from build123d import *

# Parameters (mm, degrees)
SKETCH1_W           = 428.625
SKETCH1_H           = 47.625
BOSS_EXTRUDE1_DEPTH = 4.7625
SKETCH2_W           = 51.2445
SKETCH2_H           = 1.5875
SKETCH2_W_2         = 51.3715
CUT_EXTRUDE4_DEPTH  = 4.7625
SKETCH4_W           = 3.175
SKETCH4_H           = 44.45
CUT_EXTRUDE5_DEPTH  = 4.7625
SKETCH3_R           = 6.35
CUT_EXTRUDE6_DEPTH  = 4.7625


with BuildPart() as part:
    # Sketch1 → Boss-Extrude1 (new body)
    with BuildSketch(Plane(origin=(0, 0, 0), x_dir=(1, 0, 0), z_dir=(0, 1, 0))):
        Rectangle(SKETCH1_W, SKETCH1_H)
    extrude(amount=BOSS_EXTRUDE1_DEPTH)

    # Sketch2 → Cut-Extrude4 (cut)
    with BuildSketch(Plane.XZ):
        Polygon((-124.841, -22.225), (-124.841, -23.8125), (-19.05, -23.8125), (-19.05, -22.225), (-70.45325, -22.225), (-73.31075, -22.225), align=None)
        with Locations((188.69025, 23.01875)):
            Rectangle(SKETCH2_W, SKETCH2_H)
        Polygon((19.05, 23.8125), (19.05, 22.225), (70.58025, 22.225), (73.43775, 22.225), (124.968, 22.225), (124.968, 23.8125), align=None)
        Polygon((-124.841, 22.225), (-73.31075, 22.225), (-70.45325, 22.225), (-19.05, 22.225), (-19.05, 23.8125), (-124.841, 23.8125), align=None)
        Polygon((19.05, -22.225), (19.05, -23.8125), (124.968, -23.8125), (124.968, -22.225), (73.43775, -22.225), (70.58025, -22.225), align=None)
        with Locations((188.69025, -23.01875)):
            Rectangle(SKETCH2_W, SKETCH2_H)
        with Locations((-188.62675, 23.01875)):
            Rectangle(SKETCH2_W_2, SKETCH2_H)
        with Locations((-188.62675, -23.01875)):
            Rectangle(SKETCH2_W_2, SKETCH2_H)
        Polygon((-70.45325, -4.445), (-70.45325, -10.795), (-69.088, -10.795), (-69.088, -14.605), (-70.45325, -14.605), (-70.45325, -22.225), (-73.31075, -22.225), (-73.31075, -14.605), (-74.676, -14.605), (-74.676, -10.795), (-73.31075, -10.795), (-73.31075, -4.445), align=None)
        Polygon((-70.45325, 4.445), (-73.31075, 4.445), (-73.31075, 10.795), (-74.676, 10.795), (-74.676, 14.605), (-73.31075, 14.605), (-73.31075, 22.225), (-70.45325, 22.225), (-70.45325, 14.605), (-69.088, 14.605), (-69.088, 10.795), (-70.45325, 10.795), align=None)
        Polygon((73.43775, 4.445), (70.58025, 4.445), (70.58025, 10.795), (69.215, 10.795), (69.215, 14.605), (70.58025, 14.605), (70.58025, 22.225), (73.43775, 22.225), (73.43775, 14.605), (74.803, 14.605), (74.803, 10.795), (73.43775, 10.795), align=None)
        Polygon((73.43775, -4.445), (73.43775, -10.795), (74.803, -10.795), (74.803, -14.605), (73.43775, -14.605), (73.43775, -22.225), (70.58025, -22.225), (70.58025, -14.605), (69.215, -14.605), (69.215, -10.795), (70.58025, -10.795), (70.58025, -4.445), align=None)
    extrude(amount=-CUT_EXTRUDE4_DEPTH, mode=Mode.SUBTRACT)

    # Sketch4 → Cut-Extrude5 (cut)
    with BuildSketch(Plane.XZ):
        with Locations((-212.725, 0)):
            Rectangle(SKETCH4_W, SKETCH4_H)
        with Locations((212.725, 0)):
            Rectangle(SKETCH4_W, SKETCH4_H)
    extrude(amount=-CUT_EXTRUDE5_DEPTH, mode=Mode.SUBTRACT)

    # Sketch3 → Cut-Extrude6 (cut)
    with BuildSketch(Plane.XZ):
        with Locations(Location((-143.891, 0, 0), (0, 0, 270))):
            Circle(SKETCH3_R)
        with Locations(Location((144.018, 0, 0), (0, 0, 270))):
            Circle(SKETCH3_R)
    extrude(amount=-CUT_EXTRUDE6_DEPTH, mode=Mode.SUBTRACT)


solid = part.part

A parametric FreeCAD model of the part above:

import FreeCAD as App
import Part
import Sketcher
Q = App.Units.Quantity

doc = App.newDocument("Part")
body = doc.addObject("PartDesign::Body", "Body")

sketch1 = body.newObject("Sketcher::SketchObject", "Sketch")
sketch1.AttachmentSupport = (doc.getObject("XZ_Plane"), [""])
sketch1.MapMode = "FlatFace"
sketch1.addGeometry([
    Part.LineSegment(App.Vector(-214, -24, 0), App.Vector(-214, 24, 0)),
    Part.LineSegment(App.Vector(-214, 24, 0), App.Vector(214, 24, 0)),
    Part.LineSegment(App.Vector(214, 24, 0), App.Vector(214, -24, 0)),
    Part.LineSegment(App.Vector(214, -24, 0), App.Vector(-214, -24, 0)),
], False)
sketch1.addConstraint([
    Sketcher.Constraint("Coincident", 0, 2, 1, 1),
    Sketcher.Constraint("Coincident", 1, 2, 2, 1),
    Sketcher.Constraint("Coincident", 2, 2, 3, 1),
    Sketcher.Constraint("Coincident", 3, 2, 0, 1),
    Sketcher.Constraint("Vertical", 0),
    Sketcher.Constraint("Horizontal", 1),
    Sketcher.Constraint("Vertical", 2),
    Sketcher.Constraint("Horizontal", 3),
    Sketcher.Constraint("Symmetric", 0, 2, 2, 2, -1, 1),
    Sketcher.Constraint("DistanceX", 1, 1, 1, 2, Q("16.875 in")),
    Sketcher.Constraint("DistanceY", 0, 1, 0, 2, Q("1.875 in")),
])
pad1 = body.newObject("PartDesign::Pad", "Pad")
pad1.Profile = sketch1
pad1.Length = Q("0.1875 in")
pad1.Reversed = True

sketch2 = body.newObject("Sketcher::SketchObject", "Sketch001")
sketch2.AttachmentSupport = (doc.getObject("XZ_Plane"), [""])
sketch2.MapMode = "FlatFace"
sketch2.addGeometry([
    Part.LineSegment(App.Vector(-124.8, -22.2, 0), App.Vector(-124.8, -23.8, 0)),
    Part.LineSegment(App.Vector(-124.8, -23.8, 0), App.Vector(-19.1, -23.8, 0)),
    Part.LineSegment(App.Vector(-19.1, -23.8, 0), App.Vector(-19.1, -22.2, 0)),
    Part.LineSegment(App.Vector(-19.1, -22.2, 0), App.Vector(-70.5, -22.2, 0)),
    Part.LineSegment(App.Vector(-70.5, -22.2, 0), App.Vector(-70.5, -14.6, 0)),
    Part.LineSegment(App.Vector(-70.5, -14.6, 0), App.Vector(-69.1, -14.6, 0)),
    Part.LineSegment(App.Vector(-69.1, -14.6, 0), App.Vector(-69.1, -10.8, 0)),
    Part.LineSegment(App.Vector(-69.1, -10.8, 0), App.Vector(-70.5, -10.8, 0)),
    Part.LineSegment(App.Vector(-70.5, -10.8, 0), App.Vector(-70.5, -4.4, 0)),
    Part.LineSegment(App.Vector(-70.5, -4.4, 0), App.Vector(-73.3, -4.4, 0)),
    Part.LineSegment(App.Vector(-73.3, -4.4, 0), App.Vector(-73.3, -10.8, 0)),
    Part.LineSegment(App.Vector(-73.3, -10.8, 0), App.Vector(-74.7, -10.8, 0)),
    Part.LineSegment(App.Vector(-74.7, -10.8, 0), App.Vector(-74.7, -14.6, 0)),
    Part.LineSegment(App.Vector(-74.7, -14.6, 0), App.Vector(-73.3, -14.6, 0)),
    Part.LineSegment(App.Vector(-73.3, -14.6, 0), App.Vector(-73.3, -22.2, 0)),
    Part.LineSegment(App.Vector(-73.3, -22.2, 0), App.Vector(-124.8, -22.2, 0)),
    Part.LineSegment(App.Vector(163.1, 23.8, 0), App.Vector(163.1, 22.2, 0)),
    Part.LineSegment(App.Vector(163.1, 22.2, 0), App.Vector(214.3, 22.2, 0)),
    Part.LineSegment(App.Vector(214.3, 22.2, 0), App.Vector(214.3, 23.8, 0)),
    Part.LineSegment(App.Vector(214.3, 23.8, 0), App.Vector(163.1, 23.8, 0)),
    Part.LineSegment(App.Vector(19.1, 23.8, 0), App.Vector(19.1, 22.2, 0)),
    Part.LineSegment(App.Vector(19.1, 22.2, 0), App.Vector(70.6, 22.2, 0)),
    Part.LineSegment(App.Vector(70.6, 22.2, 0), App.Vector(70.6, 14.6, 0)),
    Part.LineSegment(App.Vector(70.6, 14.6, 0), App.Vector(69.2, 14.6, 0)),
    Part.LineSegment(App.Vector(69.2, 14.6, 0), App.Vector(69.2, 10.8, 0)),
    Part.LineSegment(App.Vector(69.2, 10.8, 0), App.Vector(70.6, 10.8, 0)),
    Part.LineSegment(App.Vector(70.6, 10.8, 0), App.Vector(70.6, 4.4, 0)),
    Part.LineSegment(App.Vector(70.6, 4.4, 0), App.Vector(73.4, 4.4, 0)),
    Part.LineSegment(App.Vector(73.4, 4.4, 0), App.Vector(73.4, 10.8, 0)),
    Part.LineSegment(App.Vector(73.4, 10.8, 0), App.Vector(74.8, 10.8, 0)),
    Part.LineSegment(App.Vector(74.8, 10.8, 0), App.Vector(74.8, 14.6, 0)),
    Part.LineSegment(App.Vector(74.8, 14.6, 0), App.Vector(73.4, 14.6, 0)),
    Part.LineSegment(App.Vector(73.4, 14.6, 0), App.Vector(73.4, 22.2, 0)),
    Part.LineSegment(App.Vector(73.4, 22.2, 0), App.Vector(125, 22.2, 0)),
    Part.LineSegment(App.Vector(125, 22.2, 0), App.Vector(125, 23.8, 0)),
    Part.LineSegment(App.Vector(125, 23.8, 0), App.Vector(19.1, 23.8, 0)),
    Part.LineSegment(App.Vector(-124.8, 22.2, 0), App.Vector(-73.3, 22.2, 0)),
    Part.LineSegment(App.Vector(-73.3, 22.2, 0), App.Vector(-73.3, 14.6, 0)),
    Part.LineSegment(App.Vector(-73.3, 14.6, 0), App.Vector(-74.7, 14.6, 0)),
    Part.LineSegment(App.Vector(-74.7, 14.6, 0), App.Vector(-74.7, 10.8, 0)),
    Part.LineSegment(App.Vector(-74.7, 10.8, 0), App.Vector(-73.3, 10.8, 0)),
    Part.LineSegment(App.Vector(-73.3, 10.8, 0), App.Vector(-73.3, 4.4, 0)),
    Part.LineSegment(App.Vector(-73.3, 4.4, 0), App.Vector(-70.5, 4.4, 0)),
    Part.LineSegment(App.Vector(-70.5, 4.4, 0), App.Vector(-70.5, 10.8, 0)),
    Part.LineSegment(App.Vector(-70.5, 10.8, 0), App.Vector(-69.1, 10.8, 0)),
    Part.LineSegment(App.Vector(-69.1, 10.8, 0), App.Vector(-69.1, 14.6, 0)),
    Part.LineSegment(App.Vector(-69.1, 14.6, 0), App.Vector(-70.5, 14.6, 0)),
    Part.LineSegment(App.Vector(-70.5, 14.6, 0), App.Vector(-70.5, 22.2, 0)),
    Part.LineSegment(App.Vector(-70.5, 22.2, 0), App.Vector(-19.1, 22.2, 0)),
    Part.LineSegment(App.Vector(-19.1, 22.2, 0), App.Vector(-19.1, 23.8, 0)),
    Part.LineSegment(App.Vector(-19.1, 23.8, 0), App.Vector(-124.8, 23.8, 0)),
    Part.LineSegment(App.Vector(-124.8, 23.8, 0), App.Vector(-124.8, 22.2, 0)),
    Part.LineSegment(App.Vector(19.1, -22.2, 0), App.Vector(19.1, -23.8, 0)),
    Part.LineSegment(App.Vector(19.1, -23.8, 0), App.Vector(125, -23.8, 0)),
    Part.LineSegment(App.Vector(125, -23.8, 0), App.Vector(125, -22.2, 0)),
    Part.LineSegment(App.Vector(125, -22.2, 0), App.Vector(73.4, -22.2, 0)),
    Part.LineSegment(App.Vector(73.4, -22.2, 0), App.Vector(73.4, -14.6, 0)),
    Part.LineSegment(App.Vector(73.4, -14.6, 0), App.Vector(74.8, -14.6, 0)),
    Part.LineSegment(App.Vector(74.8, -14.6, 0), App.Vector(74.8, -10.8, 0)),
    Part.LineSegment(App.Vector(74.8, -10.8, 0), App.Vector(73.4, -10.8, 0)),
    Part.LineSegment(App.Vector(73.4, -10.8, 0), App.Vector(73.4, -4.4, 0)),
    Part.LineSegment(App.Vector(73.4, -4.4, 0), App.Vector(70.6, -4.4, 0)),
    Part.LineSegment(App.Vector(70.6, -4.4, 0), App.Vector(70.6, -10.8, 0)),
    Part.LineSegment(App.Vector(70.6, -10.8, 0), App.Vector(69.2, -10.8, 0)),
    Part.LineSegment(App.Vector(69.2, -10.8, 0), App.Vector(69.2, -14.6, 0)),
    Part.LineSegment(App.Vector(69.2, -14.6, 0), App.Vector(70.6, -14.6, 0)),
    Part.LineSegment(App.Vector(70.6, -14.6, 0), App.Vector(70.6, -22.2, 0)),
    Part.LineSegment(App.Vector(70.6, -22.2, 0), App.Vector(19.1, -22.2, 0)),
    Part.LineSegment(App.Vector(163.1, -22.2, 0), App.Vector(163.1, -23.8, 0)),
    Part.LineSegment(App.Vector(163.1, -23.8, 0), App.Vector(214.3, -23.8, 0)),
    Part.LineSegment(App.Vector(214.3, -23.8, 0), App.Vector(214.3, -22.2, 0)),
    Part.LineSegment(App.Vector(214.3, -22.2, 0), App.Vector(163.1, -22.2, 0)),
    Part.LineSegment(App.Vector(-214.3, 23.8, 0), App.Vector(-214.3, 22.2, 0)),
    Part.LineSegment(App.Vector(-214.3, 22.2, 0), App.Vector(-162.9, 22.2, 0)),
    Part.LineSegment(App.Vector(-162.9, 22.2, 0), App.Vector(-162.9, 23.8, 0)),
    Part.LineSegment(App.Vector(-162.9, 23.8, 0), App.Vector(-214.3, 23.8, 0)),
    Part.LineSegment(App.Vector(-214.3, -22.2, 0), App.Vector(-214.3, -23.8, 0)),
    Part.LineSegment(App.Vector(-214.3, -23.8, 0), App.Vector(-162.9, -23.8, 0)),
    Part.LineSegment(App.Vector(-162.9, -23.8, 0), App.Vector(-162.9, -22.2, 0)),
    Part.LineSegment(App.Vector(-162.9, -22.2, 0), App.Vector(-214.3, -22.2, 0)),
], False)
sketch2.addConstraint([
    Sketcher.Constraint("Coincident", 0, 2, 1, 1),
    Sketcher.Constraint("Coincident", 1, 2, 2, 1),
    Sketcher.Constraint("Coincident", 2, 2, 3, 1),
    Sketcher.Constraint("Coincident", 3, 2, 4, 1),
    Sketcher.Constraint("Coincident", 4, 2, 5, 1),
    Sketcher.Constraint("Coincident", 5, 2, 6, 1),
    Sketcher.Constraint("Coincident", 6, 2, 7, 1),
    Sketcher.Constraint("Coincident", 7, 2, 8, 1),
    Sketcher.Constraint("Coincident", 8, 2, 9, 1),
    Sketcher.Constraint("Coincident", 9, 2, 10, 1),
    Sketcher.Constraint("Coincident", 10, 2, 11, 1),
    Sketcher.Constraint("Coincident", 11, 2, 12, 1),
    Sketcher.Constraint("Coincident", 12, 2, 13, 1),
    Sketcher.Constraint("Coincident", 13, 2, 14, 1),
    Sketcher.Constraint("Coincident", 14, 2, 15, 1),
    Sketcher.Constraint("Coincident", 15, 2, 0, 1),
    Sketcher.Constraint("Coincident", 16, 2, 17, 1),
    Sketcher.Constraint("Coincident", 17, 2, 18, 1),
    Sketcher.Constraint("Coincident", 18, 2, 19, 1),
    Sketcher.Constraint("Coincident", 19, 2, 16, 1),
    Sketcher.Constraint("Coincident", 20, 2, 21, 1),
    Sketcher.Constraint("Coincident", 21, 2, 22, 1),
    Sketcher.Constraint("Coincident", 22, 2, 23, 1),
    Sketcher.Constraint("Coincident", 23, 2, 24, 1),
    Sketcher.Constraint("Coincident", 24, 2, 25, 1),
    Sketcher.Constraint("Coincident", 25, 2, 26, 1),
    Sketcher.Constraint("Coincident", 26, 2, 27, 1),
    Sketcher.Constraint("Coincident", 27, 2, 28, 1),
    Sketcher.Constraint("Coincident", 28, 2, 29, 1),
    Sketcher.Constraint("Coincident", 29, 2, 30, 1),
    Sketcher.Constraint("Coincident", 30, 2, 31, 1),
    Sketcher.Constraint("Coincident", 31, 2, 32, 1),
    Sketcher.Constraint("Coincident", 32, 2, 33, 1),
    Sketcher.Constraint("Coincident", 33, 2, 34, 1),
    Sketcher.Constraint("Coincident", 34, 2, 35, 1),
    Sketcher.Constraint("Coincident", 35, 2, 20, 1),
    Sketcher.Constraint("Coincident", 36, 2, 37, 1),
    Sketcher.Constraint("Coincident", 37, 2, 38, 1),
    Sketcher.Constraint("Coincident", 38, 2, 39, 1),
    Sketcher.Constraint("Coincident", 39, 2, 40, 1),
    Sketcher.Constraint("Coincident", 40, 2, 41, 1),
    Sketcher.Constraint("Coincident", 41, 2, 42, 1),
    Sketcher.Constraint("Coincident", 42, 2, 43, 1),
    Sketcher.Constraint("Coincident", 43, 2, 44, 1),
    Sketcher.Constraint("Coincident", 44, 2, 45, 1),
    Sketcher.Constraint("Coincident", 45, 2, 46, 1),
    Sketcher.Constraint("Coincident", 46, 2, 47, 1),
    Sketcher.Constraint("Coincident", 47, 2, 48, 1),
    Sketcher.Constraint("Coincident", 48, 2, 49, 1),
    Sketcher.Constraint("Coincident", 49, 2, 50, 1),
    Sketcher.Constraint("Coincident", 50, 2, 51, 1),
    Sketcher.Constraint("Coincident", 51, 2, 36, 1),
    Sketcher.Constraint("Coincident", 52, 2, 53, 1),
    Sketcher.Constraint("Coincident", 53, 2, 54, 1),
    Sketcher.Constraint("Coincident", 54, 2, 55, 1),
    Sketcher.Constraint("Coincident", 55, 2, 56, 1),
    Sketcher.Constraint("Coincident", 56, 2, 57, 1),
    Sketcher.Constraint("Coincident", 57, 2, 58, 1),
    Sketcher.Constraint("Coincident", 58, 2, 59, 1),
    Sketcher.Constraint("Coincident", 59, 2, 60, 1),
    Sketcher.Constraint("Coincident", 60, 2, 61, 1),
    Sketcher.Constraint("Coincident", 61, 2, 62, 1),
    Sketcher.Constraint("Coincident", 62, 2, 63, 1),
    Sketcher.Constraint("Coincident", 63, 2, 64, 1),
    Sketcher.Constraint("Coincident", 64, 2, 65, 1),
    Sketcher.Constraint("Coincident", 65, 2, 66, 1),
    Sketcher.Constraint("Coincident", 66, 2, 67, 1),
    Sketcher.Constraint("Coincident", 67, 2, 52, 1),
    Sketcher.Constraint("Coincident", 68, 2, 69, 1),
    Sketcher.Constraint("Coincident", 69, 2, 70, 1),
    Sketcher.Constraint("Coincident", 70, 2, 71, 1),
    Sketcher.Constraint("Coincident", 71, 2, 68, 1),
    Sketcher.Constraint("Coincident", 72, 2, 73, 1),
    Sketcher.Constraint("Coincident", 73, 2, 74, 1),
    Sketcher.Constraint("Coincident", 74, 2, 75, 1),
    Sketcher.Constraint("Coincident", 75, 2, 72, 1),
    Sketcher.Constraint("Coincident", 76, 2, 77, 1),
    Sketcher.Constraint("Coincident", 77, 2, 78, 1),
    Sketcher.Constraint("Coincident", 78, 2, 79, 1),
    Sketcher.Constraint("Coincident", 79, 2, 76, 1),
    Sketcher.Constraint("Vertical", 0),
    Sketcher.Constraint("Horizontal", 1),
    Sketcher.Constraint("Vertical", 2),
    Sketcher.Constraint("Horizontal", 3),
    Sketcher.Constraint("Vertical", 4),
    Sketcher.Constraint("Horizontal", 5),
    Sketcher.Constraint("Vertical", 6),
    Sketcher.Constraint("Horizontal", 7),
    Sketcher.Constraint("Vertical", 8),
    Sketcher.Constraint("Horizontal", 9),
    Sketcher.Constraint("Vertical", 10),
    Sketcher.Constraint("Horizontal", 11),
    Sketcher.Constraint("Vertical", 12),
    Sketcher.Constraint("Horizontal", 13),
    Sketcher.Constraint("Vertical", 14),
    Sketcher.Constraint("Horizontal", 15),
    Sketcher.Constraint("Vertical", 16),
    Sketcher.Constraint("Horizontal", 17),
    Sketcher.Constraint("Vertical", 18),
    Sketcher.Constraint("Horizontal", 19),
    Sketcher.Constraint("Vertical", 20),
    Sketcher.Constraint("Horizontal", 21),
    Sketcher.Constraint("Vertical", 22),
    Sketcher.Constraint("Horizontal", 23),
    Sketcher.Constraint("Vertical", 24),
    Sketcher.Constraint("Horizontal", 25),
    Sketcher.Constraint("Vertical", 26),
    Sketcher.Constraint("Horizontal", 27),
    Sketcher.Constraint("Vertical", 28),
    Sketcher.Constraint("Horizontal", 29),
    Sketcher.Constraint("Vertical", 30),
    Sketcher.Constraint("Horizontal", 31),
    Sketcher.Constraint("Vertical", 32),
    Sketcher.Constraint("Horizontal", 33),
    Sketcher.Constraint("Vertical", 34),
    Sketcher.Constraint("Horizontal", 35),
    Sketcher.Constraint("Horizontal", 36),
    Sketcher.Constraint("Vertical", 37),
    Sketcher.Constraint("Horizontal", 38),
    Sketcher.Constraint("Vertical", 39),
    Sketcher.Constraint("Horizontal", 40),
    Sketcher.Constraint("Vertical", 41),
    Sketcher.Constraint("Horizontal", 42),
    Sketcher.Constraint("Vertical", 43),
    Sketcher.Constraint("Horizontal", 44),
    Sketcher.Constraint("Vertical", 45),
    Sketcher.Constraint("Horizontal", 46),
    Sketcher.Constraint("Vertical", 47),
    Sketcher.Constraint("Horizontal", 48),
    Sketcher.Constraint("Vertical", 49),
    Sketcher.Constraint("Horizontal", 50),
    Sketcher.Constraint("Vertical", 51),
    Sketcher.Constraint("Vertical", 52),
    Sketcher.Constraint("Horizontal", 53),
    Sketcher.Constraint("Vertical", 54),
    Sketcher.Constraint("Horizontal", 55),
    Sketcher.Constraint("Vertical", 56),
    Sketcher.Constraint("Horizontal", 57),
    Sketcher.Constraint("Vertical", 58),
    Sketcher.Constraint("Horizontal", 59),
    Sketcher.Constraint("Vertical", 60),
    Sketcher.Constraint("Horizontal", 61),
    Sketcher.Constraint("Vertical", 62),
    Sketcher.Constraint("Horizontal", 63),
    Sketcher.Constraint("Vertical", 64),
    Sketcher.Constraint("Horizontal", 65),
    Sketcher.Constraint("Vertical", 66),
    Sketcher.Constraint("Horizontal", 67),
    Sketcher.Constraint("Vertical", 68),
    Sketcher.Constraint("Horizontal", 69),
    Sketcher.Constraint("Vertical", 70),
    Sketcher.Constraint("Horizontal", 71),
    Sketcher.Constraint("Vertical", 72),
    Sketcher.Constraint("Horizontal", 73),
    Sketcher.Constraint("Vertical", 74),
    Sketcher.Constraint("Horizontal", 75),
    Sketcher.Constraint("Vertical", 76),
    Sketcher.Constraint("Horizontal", 77),
    Sketcher.Constraint("Vertical", 78),
    Sketcher.Constraint("Horizontal", 79),
    Sketcher.Constraint("Symmetric", 2, 2, 20, 2, -1, 1),
    Sketcher.Constraint("Symmetric", 49, 2, 52, 2, -1, 1),
    Sketcher.Constraint("Symmetric", 70, 2, 72, 2, -1, 1),
    Sketcher.Constraint("Symmetric", 18, 2, 76, 2, -1, 1),
    Sketcher.Constraint("Symmetric", 20, 2, 48, 2, -2),
    Sketcher.Constraint("Symmetric", 17, 2, 72, 2, -2),
    Sketcher.Constraint("Symmetric", 14, 2, 36, 2, -1),
    Sketcher.Constraint("Symmetric", 12, 2, 38, 2, -1),
    Sketcher.Constraint("Symmetric", 10, 2, 40, 2, -1),
    Sketcher.Constraint("Symmetric", 8, 2, 42, 2, -1),
    Sketcher.Constraint("Symmetric", 6, 2, 44, 2, -1),
    Sketcher.Constraint("Symmetric", 4, 2, 46, 2, -1),
    Sketcher.Constraint("Symmetric", 0, 2, 50, 2, -1),
    Sketcher.Constraint("Symmetric", 34, 2, 53, 2, -1),
    Sketcher.Constraint("Symmetric", 32, 2, 55, 2, -1),
    Sketcher.Constraint("Symmetric", 30, 2, 57, 2, -1),
    Sketcher.Constraint("Symmetric", 28, 2, 59, 2, -1),
    Sketcher.Constraint("Symmetric", 26, 2, 61, 2, -1),
    Sketcher.Constraint("Symmetric", 24, 2, 63, 2, -1),
    Sketcher.Constraint("Symmetric", 22, 2, 65, 2, -1),
    Sketcher.Constraint("Symmetric", 19, 2, 68, 2, -1),
    Sketcher.Constraint("Symmetric", 74, 2, 77, 2, -1),
    Sketcher.Constraint("Horizontal", 7, 2, 10, 2),
    Sketcher.Constraint("Horizontal", 5, 2, 12, 2),
    Sketcher.Constraint("Horizontal", 3, 2, 14, 2),
    Sketcher.Constraint("Horizontal", 17, 2, 20, 2),
    Sketcher.Constraint("Horizontal", 25, 2, 28, 2),
    Sketcher.Constraint("Horizontal", 23, 2, 30, 2),
    Sketcher.Constraint("Horizontal", 21, 2, 32, 2),
    Sketcher.Constraint("Horizontal", 19, 2, 34, 2),
    Sketcher.Constraint("Horizontal", 31, 2, 37, 2),
    Sketcher.Constraint("Horizontal", 29, 2, 39, 2),
    Sketcher.Constraint("Horizontal", 27, 2, 41, 2),
    Sketcher.Constraint("Horizontal", 55, 2, 66, 2),
    Sketcher.Constraint("Horizontal", 71, 2, 78, 2),
    Sketcher.Constraint("Vertical", 4, 2, 7, 2),
    Sketcher.Constraint("Vertical", 10, 2, 13, 2),
    Sketcher.Constraint("Vertical", 22, 2, 25, 2),
    Sketcher.Constraint("Vertical", 28, 2, 31, 2),
    Sketcher.Constraint("Equal", 7, 11),
    Sketcher.Constraint("Equal", 15, 21),
    Sketcher.Constraint("Equal", 13, 23),
    Sketcher.Constraint("Equal", 9, 27),
    Sketcher.Constraint("Equal", 25, 29),
    Sketcher.Constraint("Equal", 21, 33),
    Sketcher.Constraint("DistanceY", 4, 1, 4, 2, Q("0.3 in")),
    Sketcher.Constraint("DistanceX", 35, 2, 35, 1, Q("4.17 in")),
    Sketcher.Constraint("DistanceY", 6, 1, 6, 2, Q("0.15 in")),
    Sketcher.Constraint("DistanceY", 8, 1, 8, 2, Q("0.25 in")),
    Sketcher.Constraint("DistanceX", 1, 1, 1, 2, Q("4.165 in")),
    Sketcher.Constraint("DistanceY", 0, 2, 0, 1, Q("0.0625 in")),
    Sketcher.Constraint("DistanceX", 1, 2, -1, 1, Q("0.75 in")),
    Sketcher.Constraint("DistanceX", 5, 2, -1, 1, Q("2.72 in")),
    Sketcher.Constraint("DistanceX", -1, 1, 16, 2, Q("6.42 in")),
    Sketcher.Constraint("DistanceX", 9, 2, 9, 1, Q("0.1125 in")),
    Sketcher.Constraint("DistanceX", 17, 1, 17, 2, Q("2.0175 in")),
    Sketcher.Constraint("DistanceX", 73, 1, 73, 2, Q("2.0225 in")),
    Sketcher.Constraint("DistanceY", 0, 2, -1, 1, Q("0.9375 in")),
])
pocket1 = body.newObject("PartDesign::Pocket", "Pocket")
pocket1.Profile = sketch2
pocket1.Length = Q("0.1875 in")

sketch3 = body.newObject("Sketcher::SketchObject", "Sketch002")
sketch3.AttachmentSupport = (doc.getObject("XZ_Plane"), [""])
sketch3.MapMode = "FlatFace"
sketch3.addGeometry([
    Part.LineSegment(App.Vector(-214.3, 22.2, 0), App.Vector(-214.3, -22.2, 0)),
    Part.LineSegment(App.Vector(-214.3, -22.2, 0), App.Vector(-211.1, -22.2, 0)),
    Part.LineSegment(App.Vector(-211.1, -22.2, 0), App.Vector(-211.1, 22.2, 0)),
    Part.LineSegment(App.Vector(-211.1, 22.2, 0), App.Vector(-214.3, 22.2, 0)),
    Part.LineSegment(App.Vector(211.1, 22.2, 0), App.Vector(211.1, -22.2, 0)),
    Part.LineSegment(App.Vector(211.1, -22.2, 0), App.Vector(214.3, -22.2, 0)),
    Part.LineSegment(App.Vector(214.3, -22.2, 0), App.Vector(214.3, 22.2, 0)),
    Part.LineSegment(App.Vector(214.3, 22.2, 0), App.Vector(211.1, 22.2, 0)),
], False)
sketch3.addConstraint([
    Sketcher.Constraint("Coincident", 0, 2, 1, 1),
    Sketcher.Constraint("Coincident", 1, 2, 2, 1),
    Sketcher.Constraint("Coincident", 2, 2, 3, 1),
    Sketcher.Constraint("Coincident", 3, 2, 0, 1),
    Sketcher.Constraint("Coincident", 4, 2, 5, 1),
    Sketcher.Constraint("Coincident", 5, 2, 6, 1),
    Sketcher.Constraint("Coincident", 6, 2, 7, 1),
    Sketcher.Constraint("Coincident", 7, 2, 4, 1),
    Sketcher.Constraint("Vertical", 0),
    Sketcher.Constraint("Horizontal", 1),
    Sketcher.Constraint("Vertical", 2),
    Sketcher.Constraint("Horizontal", 3),
    Sketcher.Constraint("Vertical", 4),
    Sketcher.Constraint("Horizontal", 5),
    Sketcher.Constraint("Vertical", 6),
    Sketcher.Constraint("Horizontal", 7),
    Sketcher.Constraint("Symmetric", 2, 2, 4, 2, -1, 1),
    Sketcher.Constraint("Symmetric", 0, 2, 6, 2, -1, 1),
    Sketcher.Constraint("Horizontal", 1, 2, 4, 2),
    Sketcher.Constraint("DistanceY", 0, 2, 0, 1, Q("1.75 in")),
    Sketcher.Constraint("DistanceX", 1, 1, 1, 2, Q("0.125 in")),
    Sketcher.Constraint("DistanceX", 0, 2, 4, 2, Q("16.75 in")),
])
pocket2 = body.newObject("PartDesign::Pocket", "Pocket001")
pocket2.Profile = sketch3
pocket2.Length = Q("0.1875 in")

sketch4 = body.newObject("Sketcher::SketchObject", "Sketch003")
sketch4.AttachmentSupport = (doc.getObject("XZ_Plane"), [""])
sketch4.MapMode = "FlatFace"
sketch4.addGeometry([
    Part.Circle(App.Vector(-144, 0, 0), App.Vector(0, 0, 1), 6),
    Part.Circle(App.Vector(144, 0, 0), App.Vector(0, 0, 1), 6),
], False)
sketch4.addConstraint([
    Sketcher.Constraint("Equal", 0, 1),
    Sketcher.Constraint("PointOnObject", 0, 3, -1),
    Sketcher.Constraint("PointOnObject", 1, 3, -1),
    Sketcher.Constraint("Diameter", 0, Q("0.5 in")),
    Sketcher.Constraint("DistanceX", -1, 1, 1, 3, Q("5.67 in")),
    Sketcher.Constraint("DistanceX", 0, 3, -1, 1, Q("5.665 in")),
])
pocket3 = body.newObject("PartDesign::Pocket", "Pocket002")
pocket3.Profile = sketch4
pocket3.Length = Q("0.1875 in")

doc.recompute()
